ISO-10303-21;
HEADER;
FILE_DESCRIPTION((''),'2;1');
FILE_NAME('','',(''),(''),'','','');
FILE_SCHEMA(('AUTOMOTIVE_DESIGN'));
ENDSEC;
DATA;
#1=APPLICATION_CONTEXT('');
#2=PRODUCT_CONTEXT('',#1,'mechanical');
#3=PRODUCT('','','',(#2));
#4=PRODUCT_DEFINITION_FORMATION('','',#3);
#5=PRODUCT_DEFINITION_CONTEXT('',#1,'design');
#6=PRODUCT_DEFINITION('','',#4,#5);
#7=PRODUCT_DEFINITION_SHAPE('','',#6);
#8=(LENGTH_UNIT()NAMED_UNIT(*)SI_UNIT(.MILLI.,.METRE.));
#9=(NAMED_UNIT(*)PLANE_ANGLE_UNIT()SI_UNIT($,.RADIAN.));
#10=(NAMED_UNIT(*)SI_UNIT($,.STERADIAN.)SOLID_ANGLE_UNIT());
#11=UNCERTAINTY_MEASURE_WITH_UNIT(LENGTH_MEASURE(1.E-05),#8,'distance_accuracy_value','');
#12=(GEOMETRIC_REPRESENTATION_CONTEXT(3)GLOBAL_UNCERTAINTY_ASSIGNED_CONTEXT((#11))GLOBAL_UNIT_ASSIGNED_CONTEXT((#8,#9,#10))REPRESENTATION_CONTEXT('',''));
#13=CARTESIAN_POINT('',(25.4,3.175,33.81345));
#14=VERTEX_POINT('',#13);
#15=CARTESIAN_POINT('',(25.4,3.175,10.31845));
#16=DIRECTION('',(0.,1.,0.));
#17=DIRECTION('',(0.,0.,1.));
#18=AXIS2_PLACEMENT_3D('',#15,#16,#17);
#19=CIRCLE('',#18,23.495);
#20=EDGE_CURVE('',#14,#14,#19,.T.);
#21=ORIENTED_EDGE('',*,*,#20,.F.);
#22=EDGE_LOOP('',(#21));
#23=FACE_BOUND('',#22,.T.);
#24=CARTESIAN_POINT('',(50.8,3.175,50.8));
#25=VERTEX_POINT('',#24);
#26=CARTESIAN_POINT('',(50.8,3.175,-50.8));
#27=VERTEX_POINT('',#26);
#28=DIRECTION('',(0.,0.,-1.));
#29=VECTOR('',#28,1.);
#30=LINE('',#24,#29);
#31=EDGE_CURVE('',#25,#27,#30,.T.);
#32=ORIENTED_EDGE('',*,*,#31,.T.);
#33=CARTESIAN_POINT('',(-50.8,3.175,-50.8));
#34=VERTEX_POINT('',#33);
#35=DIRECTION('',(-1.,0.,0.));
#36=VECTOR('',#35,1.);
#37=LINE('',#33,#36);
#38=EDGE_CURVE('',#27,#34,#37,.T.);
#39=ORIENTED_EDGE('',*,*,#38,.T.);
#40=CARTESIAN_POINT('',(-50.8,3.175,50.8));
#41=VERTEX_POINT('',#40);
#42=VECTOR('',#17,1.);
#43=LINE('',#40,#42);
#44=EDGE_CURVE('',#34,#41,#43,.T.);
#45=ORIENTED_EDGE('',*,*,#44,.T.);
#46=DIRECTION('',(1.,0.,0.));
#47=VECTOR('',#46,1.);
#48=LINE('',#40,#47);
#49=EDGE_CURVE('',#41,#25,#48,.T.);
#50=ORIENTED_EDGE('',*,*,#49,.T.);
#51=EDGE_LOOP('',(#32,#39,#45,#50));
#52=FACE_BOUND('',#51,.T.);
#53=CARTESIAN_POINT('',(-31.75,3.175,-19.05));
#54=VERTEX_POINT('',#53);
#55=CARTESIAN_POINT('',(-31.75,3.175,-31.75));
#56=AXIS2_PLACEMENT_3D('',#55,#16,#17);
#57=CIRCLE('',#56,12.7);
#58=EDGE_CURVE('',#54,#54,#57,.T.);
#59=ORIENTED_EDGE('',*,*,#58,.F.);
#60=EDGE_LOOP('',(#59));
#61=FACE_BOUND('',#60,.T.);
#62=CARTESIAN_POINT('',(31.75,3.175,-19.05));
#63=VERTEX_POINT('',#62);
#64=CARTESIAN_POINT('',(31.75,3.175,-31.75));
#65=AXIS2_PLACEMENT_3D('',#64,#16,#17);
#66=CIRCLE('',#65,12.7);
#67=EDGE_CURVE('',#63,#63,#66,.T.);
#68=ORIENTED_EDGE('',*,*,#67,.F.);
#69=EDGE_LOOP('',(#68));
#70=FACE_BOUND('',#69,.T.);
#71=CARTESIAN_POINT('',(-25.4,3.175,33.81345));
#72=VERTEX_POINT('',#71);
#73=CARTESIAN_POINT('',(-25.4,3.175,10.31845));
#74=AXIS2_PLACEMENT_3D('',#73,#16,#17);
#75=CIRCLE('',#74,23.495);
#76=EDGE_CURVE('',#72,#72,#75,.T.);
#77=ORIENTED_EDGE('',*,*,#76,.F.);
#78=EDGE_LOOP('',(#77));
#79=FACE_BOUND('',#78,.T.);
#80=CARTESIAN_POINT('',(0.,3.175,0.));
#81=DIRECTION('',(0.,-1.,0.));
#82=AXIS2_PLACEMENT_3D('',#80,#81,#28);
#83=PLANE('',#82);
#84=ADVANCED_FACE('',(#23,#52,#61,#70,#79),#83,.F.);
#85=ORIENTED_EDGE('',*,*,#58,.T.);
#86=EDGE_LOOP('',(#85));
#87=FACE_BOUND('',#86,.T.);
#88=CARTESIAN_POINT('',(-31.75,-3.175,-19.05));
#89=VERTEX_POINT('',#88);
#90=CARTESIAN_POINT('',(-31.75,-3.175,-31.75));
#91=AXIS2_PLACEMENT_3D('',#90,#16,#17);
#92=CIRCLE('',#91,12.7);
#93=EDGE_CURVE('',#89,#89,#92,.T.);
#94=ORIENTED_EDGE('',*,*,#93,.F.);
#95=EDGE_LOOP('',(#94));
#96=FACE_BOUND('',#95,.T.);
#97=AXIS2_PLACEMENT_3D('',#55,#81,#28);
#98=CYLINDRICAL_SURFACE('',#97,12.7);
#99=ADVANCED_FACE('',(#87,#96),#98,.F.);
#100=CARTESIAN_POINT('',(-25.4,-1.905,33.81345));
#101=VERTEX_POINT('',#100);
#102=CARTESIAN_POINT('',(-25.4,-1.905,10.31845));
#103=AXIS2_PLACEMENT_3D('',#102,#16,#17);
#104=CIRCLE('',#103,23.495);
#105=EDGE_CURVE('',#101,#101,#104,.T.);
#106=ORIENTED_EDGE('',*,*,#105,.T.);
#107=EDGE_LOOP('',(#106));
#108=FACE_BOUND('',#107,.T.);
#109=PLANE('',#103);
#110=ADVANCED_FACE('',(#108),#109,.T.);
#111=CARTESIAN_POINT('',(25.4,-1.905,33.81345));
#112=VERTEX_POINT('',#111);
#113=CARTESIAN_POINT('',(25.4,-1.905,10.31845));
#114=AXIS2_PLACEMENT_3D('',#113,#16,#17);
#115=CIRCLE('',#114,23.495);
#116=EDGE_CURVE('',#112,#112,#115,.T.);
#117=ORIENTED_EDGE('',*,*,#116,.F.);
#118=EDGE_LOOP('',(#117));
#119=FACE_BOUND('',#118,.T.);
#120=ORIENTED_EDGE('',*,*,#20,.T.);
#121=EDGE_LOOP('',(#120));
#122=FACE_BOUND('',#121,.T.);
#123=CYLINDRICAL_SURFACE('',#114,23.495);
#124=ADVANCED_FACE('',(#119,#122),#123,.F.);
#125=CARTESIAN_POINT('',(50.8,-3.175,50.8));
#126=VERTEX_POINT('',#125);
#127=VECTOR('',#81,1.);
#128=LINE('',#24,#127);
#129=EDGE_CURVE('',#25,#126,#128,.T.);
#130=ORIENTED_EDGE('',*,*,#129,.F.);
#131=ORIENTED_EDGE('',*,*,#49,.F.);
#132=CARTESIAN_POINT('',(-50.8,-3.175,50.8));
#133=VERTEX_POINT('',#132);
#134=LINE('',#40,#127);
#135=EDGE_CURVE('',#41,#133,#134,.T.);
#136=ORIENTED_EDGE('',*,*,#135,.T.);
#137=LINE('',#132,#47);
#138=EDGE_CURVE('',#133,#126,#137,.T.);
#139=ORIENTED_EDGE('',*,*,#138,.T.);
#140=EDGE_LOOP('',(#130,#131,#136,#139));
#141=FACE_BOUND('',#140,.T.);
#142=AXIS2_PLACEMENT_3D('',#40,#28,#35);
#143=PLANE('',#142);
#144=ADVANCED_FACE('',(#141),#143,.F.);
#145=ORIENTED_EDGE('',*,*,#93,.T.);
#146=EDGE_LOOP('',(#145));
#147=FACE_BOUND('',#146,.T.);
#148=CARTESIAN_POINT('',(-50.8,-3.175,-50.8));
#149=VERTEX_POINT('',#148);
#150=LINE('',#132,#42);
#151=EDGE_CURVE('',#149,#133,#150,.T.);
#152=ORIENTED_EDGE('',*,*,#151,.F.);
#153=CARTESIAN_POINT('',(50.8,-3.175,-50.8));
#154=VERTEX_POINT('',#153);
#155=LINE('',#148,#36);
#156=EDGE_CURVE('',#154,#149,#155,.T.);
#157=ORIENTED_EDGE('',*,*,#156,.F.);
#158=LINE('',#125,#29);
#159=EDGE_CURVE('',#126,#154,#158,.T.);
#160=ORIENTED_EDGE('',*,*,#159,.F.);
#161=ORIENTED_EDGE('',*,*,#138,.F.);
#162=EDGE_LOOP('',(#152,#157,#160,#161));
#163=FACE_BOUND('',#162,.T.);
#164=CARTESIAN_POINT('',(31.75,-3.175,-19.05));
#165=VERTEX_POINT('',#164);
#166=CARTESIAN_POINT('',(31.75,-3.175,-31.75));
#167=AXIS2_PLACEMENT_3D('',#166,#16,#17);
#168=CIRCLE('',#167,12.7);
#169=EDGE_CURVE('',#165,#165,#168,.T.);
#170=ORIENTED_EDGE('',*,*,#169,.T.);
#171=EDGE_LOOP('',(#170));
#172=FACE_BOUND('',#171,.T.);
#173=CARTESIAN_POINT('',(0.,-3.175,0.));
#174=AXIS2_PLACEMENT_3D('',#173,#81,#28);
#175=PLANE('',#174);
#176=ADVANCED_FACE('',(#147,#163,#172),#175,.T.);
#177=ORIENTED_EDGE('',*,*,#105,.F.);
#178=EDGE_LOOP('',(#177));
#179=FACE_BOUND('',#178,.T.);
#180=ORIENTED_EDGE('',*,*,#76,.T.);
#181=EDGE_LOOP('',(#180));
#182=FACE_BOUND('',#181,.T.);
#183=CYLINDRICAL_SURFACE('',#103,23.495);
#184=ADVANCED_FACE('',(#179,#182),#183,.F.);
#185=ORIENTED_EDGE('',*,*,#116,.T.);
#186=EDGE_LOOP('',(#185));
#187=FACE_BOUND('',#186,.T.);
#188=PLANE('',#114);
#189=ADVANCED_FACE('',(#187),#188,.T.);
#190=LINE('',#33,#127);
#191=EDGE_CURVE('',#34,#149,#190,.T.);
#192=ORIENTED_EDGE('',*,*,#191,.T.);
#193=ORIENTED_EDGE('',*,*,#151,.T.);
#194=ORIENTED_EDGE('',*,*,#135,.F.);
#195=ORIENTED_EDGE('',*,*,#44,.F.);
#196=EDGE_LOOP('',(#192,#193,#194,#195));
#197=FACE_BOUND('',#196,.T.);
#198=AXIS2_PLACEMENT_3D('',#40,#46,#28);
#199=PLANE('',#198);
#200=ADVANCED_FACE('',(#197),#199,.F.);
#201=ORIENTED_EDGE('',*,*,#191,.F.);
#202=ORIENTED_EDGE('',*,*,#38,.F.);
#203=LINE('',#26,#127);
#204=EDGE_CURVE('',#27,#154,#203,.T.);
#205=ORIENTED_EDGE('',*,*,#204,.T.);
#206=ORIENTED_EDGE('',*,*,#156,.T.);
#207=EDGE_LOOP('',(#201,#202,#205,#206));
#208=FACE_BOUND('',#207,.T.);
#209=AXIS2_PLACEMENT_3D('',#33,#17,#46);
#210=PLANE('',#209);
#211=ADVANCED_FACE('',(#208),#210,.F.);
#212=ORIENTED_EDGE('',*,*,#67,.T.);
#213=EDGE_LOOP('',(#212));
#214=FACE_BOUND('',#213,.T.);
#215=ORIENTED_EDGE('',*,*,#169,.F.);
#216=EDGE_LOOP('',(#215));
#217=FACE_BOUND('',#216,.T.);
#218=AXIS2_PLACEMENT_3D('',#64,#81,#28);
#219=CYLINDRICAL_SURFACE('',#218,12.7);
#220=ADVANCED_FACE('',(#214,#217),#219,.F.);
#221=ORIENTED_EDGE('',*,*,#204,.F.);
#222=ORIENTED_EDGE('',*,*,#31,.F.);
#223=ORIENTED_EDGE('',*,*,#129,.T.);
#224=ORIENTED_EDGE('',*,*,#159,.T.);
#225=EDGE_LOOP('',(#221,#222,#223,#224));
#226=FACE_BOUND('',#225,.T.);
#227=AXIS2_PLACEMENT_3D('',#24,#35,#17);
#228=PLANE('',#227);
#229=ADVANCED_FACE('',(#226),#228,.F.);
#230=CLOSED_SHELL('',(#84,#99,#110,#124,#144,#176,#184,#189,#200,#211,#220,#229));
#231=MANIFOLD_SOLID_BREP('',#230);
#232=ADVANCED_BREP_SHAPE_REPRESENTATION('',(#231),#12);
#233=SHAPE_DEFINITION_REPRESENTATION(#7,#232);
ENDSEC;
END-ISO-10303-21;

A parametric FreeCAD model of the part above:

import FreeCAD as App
import Part
import Sketcher
Q = App.Units.Quantity

doc = App.newDocument("Part")
body = doc.addObject("PartDesign::Body", "Body")

# Sketch on XZ plane
sketch1 = body.newObject("Sketcher::SketchObject", "Sketch")
sketch1.AttachmentSupport = (doc.getObject("XZ_Plane"), [""])
sketch1.MapMode = "FlatFace"
sketch1.addGeometry([
    Part.LineSegment(App.Vector(-51, -51, 0), App.Vector(-51, 51, 0)),  # 0
    Part.LineSegment(App.Vector(-51, 51, 0), App.Vector(51, 51, 0)),  # 1
    Part.LineSegment(App.Vector(51, 51, 0), App.Vector(51, -51, 0)),  # 2
    Part.LineSegment(App.Vector(51, -51, 0), App.Vector(-51, -51, 0)),  # 3
    Part.Circle(App.Vector(-32, -32, 0), App.Vector(0, 0, 1), 13),  # 4
    Part.Circle(App.Vector(32, -32, 0), App.Vector(0, 0, 1), 13),  # 5
], False)
sketch1.addConstraint([
    Sketcher.Constraint("Coincident", 0, 2, 1, 1),
    Sketcher.Constraint("Coincident", 1, 2, 2, 1),
    Sketcher.Constraint("Coincident", 2, 2, 3, 1),
    Sketcher.Constraint("Coincident", 3, 2, 0, 1),
    Sketcher.Constraint("Vertical", 0),
    Sketcher.Constraint("Horizontal", 1),
    Sketcher.Constraint("Vertical", 2),
    Sketcher.Constraint("Horizontal", 3),
    Sketcher.Constraint("Equal", 4, 5),
    Sketcher.Constraint("Symmetric", 0, 2, 2, 2, -1, 1),
    Sketcher.Constraint("Symmetric", 4, 3, 5, 3, -2),
    Sketcher.Constraint("Equal", 3, 0),
    Sketcher.Constraint("Diameter", 4, Q("1 in")),
    Sketcher.Constraint("DistanceX", 1, 1, 1, 2, Q("4 in")),
    Sketcher.Constraint("DistanceX", 4, 3, 5, 3, Q("2.5 in")),
    Sketcher.Constraint("DistanceY", 4, 3, -1, 1, Q("1.25 in")),
])
pad1 = body.newObject("PartDesign::Pad", "Pad")
pad1.Profile = sketch1
pad1.Length = Q("0.25 in")
pad1.Midplane = True

# Sketch on XZ plane
sketch2 = body.newObject("Sketcher::SketchObject", "Sketch001")
sketch2.AttachmentSupport = (doc.getObject("XZ_Plane"), [""])
sketch2.MapMode = "FlatFace"
sketch2.AttachmentOffset = App.Placement(App.Vector(0, 0, -0.125 * 25.4), App.Rotation())
sketch2.addGeometry([
    Part.Circle(App.Vector(-25, 10, 0), App.Vector(0, 0, 1), 23),
    Part.Circle(App.Vector(25, 10, 0), App.Vector(0, 0, 1), 23),
], False)
sketch2.addConstraint([
    Sketcher.Constraint("Equal", 0, 1),
    Sketcher.Constraint("Symmetric", 0, 3, 1, 3, -2),
    Sketcher.Constraint("Diameter", 0, Q("1.85 in")),
    Sketcher.Constraint("DistanceX", 0, 3, -1, 1, Q("1 in")),
    Sketcher.Constraint("DistanceY", -1, 1, 0, 3, Q("10.31845 mm")),
])
pocket1 = body.newObject("PartDesign::Pocket", "Pocket")
pocket1.Profile = sketch2
pocket1.Length = Q("0.2 in")
pocket1.Reversed = True

doc.recompute()
